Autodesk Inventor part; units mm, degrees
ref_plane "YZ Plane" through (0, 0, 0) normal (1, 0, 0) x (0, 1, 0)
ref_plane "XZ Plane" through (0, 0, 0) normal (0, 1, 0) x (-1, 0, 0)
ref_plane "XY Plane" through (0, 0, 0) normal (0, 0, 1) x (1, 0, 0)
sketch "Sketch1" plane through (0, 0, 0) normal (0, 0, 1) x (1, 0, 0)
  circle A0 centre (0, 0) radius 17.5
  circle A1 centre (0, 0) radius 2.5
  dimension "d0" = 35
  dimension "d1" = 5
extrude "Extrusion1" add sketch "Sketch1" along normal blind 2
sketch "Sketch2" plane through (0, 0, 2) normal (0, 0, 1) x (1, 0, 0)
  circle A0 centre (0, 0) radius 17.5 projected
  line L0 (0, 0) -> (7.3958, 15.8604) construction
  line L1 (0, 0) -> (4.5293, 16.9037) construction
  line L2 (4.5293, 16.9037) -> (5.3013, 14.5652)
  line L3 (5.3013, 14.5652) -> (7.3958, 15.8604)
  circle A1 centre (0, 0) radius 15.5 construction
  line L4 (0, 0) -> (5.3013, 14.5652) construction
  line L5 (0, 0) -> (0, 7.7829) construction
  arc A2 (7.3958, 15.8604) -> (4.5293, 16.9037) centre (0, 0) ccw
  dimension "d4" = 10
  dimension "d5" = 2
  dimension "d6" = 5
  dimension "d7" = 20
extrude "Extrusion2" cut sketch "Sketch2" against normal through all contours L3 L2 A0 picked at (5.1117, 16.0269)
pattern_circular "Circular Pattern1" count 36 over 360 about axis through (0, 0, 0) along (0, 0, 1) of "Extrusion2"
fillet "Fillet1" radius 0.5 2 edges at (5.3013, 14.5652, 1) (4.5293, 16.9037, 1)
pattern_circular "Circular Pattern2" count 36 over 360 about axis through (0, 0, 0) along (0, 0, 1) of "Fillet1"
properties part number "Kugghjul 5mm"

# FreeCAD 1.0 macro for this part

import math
import FreeCAD as App
import Part
import Sketcher
Q = App.Units.Quantity


def edges_at(feature, points):
    """Names of the edges that pass closest to the given points."""
    edges = feature.Shape.Edges
    near = lambda p: min(range(len(edges)), key=lambda i: edges[i].distToShape(Part.Vertex(*p))[0])
    return sorted({f"Edge{near(p) + 1}" for p in points})

doc = App.newDocument("Part")
body = doc.addObject("PartDesign::Body", "Body")

# Sketch on XY plane
sketch1 = body.newObject("Sketcher::SketchObject", "Sketch")
sketch1.AttachmentSupport = (doc.getObject("XY_Plane"), [""])
sketch1.MapMode = "FlatFace"
sketch1.addGeometry([
    Part.Circle(App.Vector(0, 0, 0), App.Vector(0, 0, 1), 17.5),
    Part.Circle(App.Vector(0, 0, 0), App.Vector(0, 0, 1), 2.5),
], False)
sketch1.addConstraint([
    Sketcher.Constraint("Coincident", 0, 3, -1, 1),
    Sketcher.Constraint("Coincident", 1, 3, -1, 1),
    Sketcher.Constraint("Diameter", 0, Q("35 mm")),
    Sketcher.Constraint("Diameter", 1, Q("5 mm")),
])
pad1 = body.newObject("PartDesign::Pad", "Pad")
pad1.Profile = sketch1
pad1.Length = 2

# Sketch on XY plane
sketch2 = body.newObject("Sketcher::SketchObject", "Sketch001")
sketch2.AttachmentSupport = (doc.getObject("XY_Plane"), [""])
sketch2.MapMode = "FlatFace"
sketch2.AttachmentOffset = App.Placement(App.Vector(0, 0, 2), App.Rotation())
sketch2.addGeometry([
    Part.LineSegment(App.Vector(5.3, 14.6, 0), App.Vector(7.4, 15.9, 0)),
    Part.ArcOfCircle(Part.Circle(App.Vector(0, 0, 0), App.Vector(0, 0, 1), 17.5), math.radians(65), math.radians(75)),
    Part.LineSegment(App.Vector(4.5, 16.9, 0), App.Vector(5.3, 14.6, 0)),
], False)
sketch2.addConstraint([
    Sketcher.Constraint("Coincident", 0, 2, 1, 1),
    Sketcher.Constraint("Coincident", 1, 2, 2, 1),
    Sketcher.Constraint("Coincident", 2, 2, 0, 1),
    Sketcher.Constraint("Coincident", 1, 3, -1, 1),
    Sketcher.Constraint("Equal", 0, 2),
    Sketcher.Constraint("Radius", 1, Q("17.5 mm")),
    Sketcher.Constraint("Angle", 2, Q("-71.7306 deg")),
    Sketcher.Constraint("DistanceX", 1, 2, 2, 2, Q("0.772 mm")),
    Sketcher.Constraint("DistanceX", -1, 1, 0, 2, Q("7.3958 mm")),
])
pocket1 = body.newObject("PartDesign::Pocket", "Pocket")
pocket1.Profile = sketch2
pocket1.Type = "ThroughAll"
doc.recompute()

polarpattern = body.newObject("PartDesign::PolarPattern", "PolarPattern")
polarpattern.Originals = [pocket1]
polarpattern.Axis = (doc.getObject("Z_Axis"), [""])
polarpattern.Angle = 360
polarpattern.Occurrences = 36
body.Tip = polarpattern
doc.recompute()

fillet = body.newObject("PartDesign::Fillet", "Fillet")
fillet.Base = (polarpattern, edges_at(polarpattern, [(5.301, 14.565, 1), (4.529, 16.904, 1)]))
fillet.Radius = 0.5
doc.recompute()

polarpattern2 = body.newObject("PartDesign::PolarPattern", "PolarPattern001")
polarpattern2.Originals = [fillet]
polarpattern2.Axis = (doc.getObject("Z_Axis"), [""])
polarpattern2.Angle = 360
polarpattern2.Occurrences = 36
body.Tip = polarpattern2

doc.recompute()
